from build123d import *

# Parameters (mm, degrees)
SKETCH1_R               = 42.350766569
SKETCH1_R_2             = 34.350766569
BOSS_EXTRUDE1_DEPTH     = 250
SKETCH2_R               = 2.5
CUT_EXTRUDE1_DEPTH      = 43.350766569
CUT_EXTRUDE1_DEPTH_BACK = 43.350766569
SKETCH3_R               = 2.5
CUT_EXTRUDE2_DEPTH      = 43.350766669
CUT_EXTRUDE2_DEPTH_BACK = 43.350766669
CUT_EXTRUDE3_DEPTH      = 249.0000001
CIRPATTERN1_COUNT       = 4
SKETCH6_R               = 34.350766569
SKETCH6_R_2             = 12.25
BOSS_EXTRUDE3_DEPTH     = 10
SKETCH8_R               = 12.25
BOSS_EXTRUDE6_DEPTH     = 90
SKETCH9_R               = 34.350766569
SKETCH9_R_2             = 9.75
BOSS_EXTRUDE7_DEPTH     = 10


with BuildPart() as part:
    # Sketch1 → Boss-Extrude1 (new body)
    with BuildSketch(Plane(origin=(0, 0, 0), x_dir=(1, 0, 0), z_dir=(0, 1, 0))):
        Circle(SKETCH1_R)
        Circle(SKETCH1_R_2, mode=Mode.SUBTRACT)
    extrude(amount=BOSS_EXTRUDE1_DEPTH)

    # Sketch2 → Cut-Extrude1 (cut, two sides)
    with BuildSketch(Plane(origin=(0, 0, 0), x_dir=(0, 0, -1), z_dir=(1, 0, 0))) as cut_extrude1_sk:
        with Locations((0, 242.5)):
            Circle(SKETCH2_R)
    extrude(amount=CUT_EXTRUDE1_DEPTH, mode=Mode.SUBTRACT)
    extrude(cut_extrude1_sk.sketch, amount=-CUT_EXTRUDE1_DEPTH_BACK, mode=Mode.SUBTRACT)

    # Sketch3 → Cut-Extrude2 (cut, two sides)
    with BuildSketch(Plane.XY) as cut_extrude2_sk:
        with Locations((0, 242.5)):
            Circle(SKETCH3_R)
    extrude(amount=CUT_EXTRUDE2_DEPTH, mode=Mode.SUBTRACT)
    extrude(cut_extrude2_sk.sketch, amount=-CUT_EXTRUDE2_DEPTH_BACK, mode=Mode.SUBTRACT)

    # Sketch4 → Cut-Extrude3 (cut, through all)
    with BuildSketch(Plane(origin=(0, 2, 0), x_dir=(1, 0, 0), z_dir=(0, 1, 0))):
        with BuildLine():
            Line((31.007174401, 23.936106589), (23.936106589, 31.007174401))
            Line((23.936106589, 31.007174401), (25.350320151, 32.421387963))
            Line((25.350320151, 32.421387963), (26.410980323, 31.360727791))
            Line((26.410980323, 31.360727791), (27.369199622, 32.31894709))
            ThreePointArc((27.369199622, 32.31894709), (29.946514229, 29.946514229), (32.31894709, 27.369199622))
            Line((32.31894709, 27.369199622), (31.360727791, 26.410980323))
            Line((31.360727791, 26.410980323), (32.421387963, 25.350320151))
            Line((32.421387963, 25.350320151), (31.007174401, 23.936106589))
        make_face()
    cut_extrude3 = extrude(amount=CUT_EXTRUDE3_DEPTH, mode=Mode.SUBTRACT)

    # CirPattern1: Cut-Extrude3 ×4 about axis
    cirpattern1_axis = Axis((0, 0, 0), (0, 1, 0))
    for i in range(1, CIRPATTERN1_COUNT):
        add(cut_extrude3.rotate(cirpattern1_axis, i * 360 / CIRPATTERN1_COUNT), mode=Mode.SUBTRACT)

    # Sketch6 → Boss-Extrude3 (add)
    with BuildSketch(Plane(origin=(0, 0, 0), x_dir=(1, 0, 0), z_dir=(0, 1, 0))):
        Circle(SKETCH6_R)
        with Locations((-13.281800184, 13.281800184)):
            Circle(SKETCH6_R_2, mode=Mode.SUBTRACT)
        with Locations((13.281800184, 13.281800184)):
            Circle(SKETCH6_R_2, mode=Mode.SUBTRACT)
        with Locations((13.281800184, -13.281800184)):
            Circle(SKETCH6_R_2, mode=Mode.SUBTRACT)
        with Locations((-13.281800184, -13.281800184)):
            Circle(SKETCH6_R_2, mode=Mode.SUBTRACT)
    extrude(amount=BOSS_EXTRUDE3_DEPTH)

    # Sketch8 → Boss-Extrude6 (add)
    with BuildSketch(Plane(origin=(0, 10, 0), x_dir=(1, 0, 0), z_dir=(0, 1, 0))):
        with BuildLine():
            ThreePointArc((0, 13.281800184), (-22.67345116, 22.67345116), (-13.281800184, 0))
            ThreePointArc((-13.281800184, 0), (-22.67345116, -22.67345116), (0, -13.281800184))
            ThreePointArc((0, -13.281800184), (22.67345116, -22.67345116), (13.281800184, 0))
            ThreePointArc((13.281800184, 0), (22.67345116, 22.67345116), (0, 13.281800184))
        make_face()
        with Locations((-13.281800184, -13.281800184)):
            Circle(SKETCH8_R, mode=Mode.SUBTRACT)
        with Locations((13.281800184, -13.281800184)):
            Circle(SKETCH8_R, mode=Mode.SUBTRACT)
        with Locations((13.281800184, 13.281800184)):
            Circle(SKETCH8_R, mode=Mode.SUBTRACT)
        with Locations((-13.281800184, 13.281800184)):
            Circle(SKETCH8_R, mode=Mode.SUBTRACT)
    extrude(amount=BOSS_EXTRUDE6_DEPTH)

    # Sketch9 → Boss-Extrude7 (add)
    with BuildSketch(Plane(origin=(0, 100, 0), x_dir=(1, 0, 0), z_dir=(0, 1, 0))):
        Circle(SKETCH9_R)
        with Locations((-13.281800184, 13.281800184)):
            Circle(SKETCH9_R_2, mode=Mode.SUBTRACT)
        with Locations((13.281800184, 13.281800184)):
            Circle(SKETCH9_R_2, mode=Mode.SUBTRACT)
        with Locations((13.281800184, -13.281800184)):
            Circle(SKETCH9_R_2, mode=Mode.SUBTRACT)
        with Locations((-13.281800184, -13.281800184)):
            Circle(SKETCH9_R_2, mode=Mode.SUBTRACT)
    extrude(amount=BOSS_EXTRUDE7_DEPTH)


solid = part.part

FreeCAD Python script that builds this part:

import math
import FreeCAD as App
import Part
import Sketcher
Q = App.Units.Quantity

doc = App.newDocument("Part")
params = doc.addObject("Spreadsheet::Sheet", "Params")
for row, (alias, value) in enumerate([
    ("pad1_length", "250 mm"),
    ("sketch2_diameter", "5 mm"),
    ("sketch3_diameter", "5 mm"),
    ("sketch4_length", "10 mm"),
    ("sketch4_length2", "2 mm"),
    ("sketch4_length3", "1.5 mm"),
    ("sketch5_diameter", "24.5 mm"),
    ("pad2_length", "10 mm"),
    ("sketch6_diameter", "24.5 mm"),
    ("pad3_length", "90 mm"),
    ("sketch7_diameter", "19.5 mm"),
    ("pad4_length", "10 mm"),
], start=1):
    params.set(f"A{row}", alias)
    params.set(f"B{row}", "=" + value)
    params.setAlias(f"B{row}", alias)

body = doc.addObject("PartDesign::Body", "Body")

# Sketch on XZ plane
sketch1 = body.newObject("Sketcher::SketchObject", "Sketch")
sketch1.AttachmentSupport = (doc.getObject("XZ_Plane"), [""])
sketch1.MapMode = "FlatFace"
sketch1.addGeometry(Part.Circle(App.Vector(0, 0, 0), App.Vector(0, 0, 1), 42), False)
sketch1.addGeometry(Part.Circle(App.Vector(0, 0, 0), App.Vector(0, 0, 1), 34), False)
sketch1.addConstraint(Sketcher.Constraint("Coincident", 0, 3, -1, 1))
sketch1.addConstraint(Sketcher.Constraint("Coincident", 1, 3, -1, 1))
sketch1.addConstraint(Sketcher.Constraint("Diameter", 0, 84.701533))
sketch1.addConstraint(Sketcher.Constraint("Diameter", 1, 68.701533))
pad1 = body.newObject("PartDesign::Pad", "Pad")
pad1.Profile = sketch1
pad1.setExpression("Length", "Params.pad1_length")
pad1.Reversed = True

# Sketch on YZ plane
sketch2 = body.newObject("Sketcher::SketchObject", "Sketch001")
sketch2.AttachmentSupport = (doc.getObject("YZ_Plane"), [""])
sketch2.MapMode = "FlatFace"
sketch2.addGeometry(Part.Circle(App.Vector(242.5, 0, 0), App.Vector(0, 0, 1), 2.5), False)
sketch2.addConstraint(Sketcher.Constraint("PointOnObject", 0, 3, -1))
sketch2.addConstraint(Sketcher.Constraint("Diameter", 0, 5.0))
sketch2.addConstraint(Sketcher.Constraint("DistanceX", -1, 1, 0, 3, 242.5))
sketch2.setExpression("Constraints[1]", "Params.sketch2_diameter")
pocket1 = body.newObject("PartDesign::Pocket", "Pocket")
pocket1.Profile = sketch2
pocket1.Type = "ThroughAll"
pocket1.Midplane = True

# Sketch on XY plane
sketch3 = body.newObject("Sketcher::SketchObject", "Sketch002")
sketch3.AttachmentSupport = (doc.getObject("XY_Plane"), [""])
sketch3.MapMode = "FlatFace"
sketch3.addGeometry(Part.Circle(App.Vector(0, 242.5, 0), App.Vector(0, 0, 1), 2.5), False)
sketch3.addConstraint(Sketcher.Constraint("PointOnObject", 0, 3, -2))
sketch3.addConstraint(Sketcher.Constraint("Diameter", 0, 5.0))
sketch3.addConstraint(Sketcher.Constraint("DistanceY", -1, 1, 0, 3, 242.5))
sketch3.setExpression("Constraints[1]", "Params.sketch3_diameter")
pocket2 = body.newObject("PartDesign::Pocket", "Pocket001")
pocket2.Profile = sketch3
pocket2.Type = "ThroughAll"
pocket2.Midplane = True

# Sketch on XZ plane
sketch4 = body.newObject("Sketcher::SketchObject", "Sketch003")
sketch4.AttachmentSupport = (doc.getObject("XZ_Plane"), [""])
sketch4.MapMode = "FlatFace"
sketch4.AttachmentOffset = App.Placement(App.Vector(0, 0, -2), App.Rotation())
sketch4.addGeometry(Part.LineSegment(App.Vector(23.9, -31, 0), App.Vector(31, -23.9, 0)), False)
sketch4.addGeometry(Part.LineSegment(App.Vector(31, -23.9, 0), App.Vector(32.4, -25.4, 0)), False)
sketch4.addGeometry(Part.LineSegment(App.Vector(32.4, -25.4, 0), App.Vector(31.4, -26.4, 0)), False)
sketch4.addGeometry(Part.LineSegment(App.Vector(31.4, -26.4, 0), App.Vector(32.3, -27.4, 0)), False)
sketch4.addGeometry(Part.ArcOfCircle(Part.Circle(App.Vector(0, 0, 0), App.Vector(0, 0, 1), 42.4), math.radians(-49.74), math.radians(-40.26)), False)
sketch4.addGeometry(Part.LineSegment(App.Vector(27.4, -32.3, 0), App.Vector(26.4, -31.4, 0)), False)
sketch4.addGeometry(Part.LineSegment(App.Vector(26.4, -31.4, 0), App.Vector(25.4, -32.4, 0)), False)
sketch4.addGeometry(Part.LineSegment(App.Vector(25.4, -32.4, 0), App.Vector(23.9, -31, 0)), False)
sketch4.addConstraint(Sketcher.Constraint("Coincident", 0, 2, 1, 1))
sketch4.addConstraint(Sketcher.Constraint("Coincident", 1, 2, 2, 1))
sketch4.addConstraint(Sketcher.Constraint("Coincident", 2, 2, 3, 1))
sketch4.addConstraint(Sketcher.Constraint("Coincident", 3, 2, 4, 2))
sketch4.addConstraint(Sketcher.Constraint("Coincident", 4, 1, 5, 1))
sketch4.addConstraint(Sketcher.Constraint("Coincident", 5, 2, 6, 1))
sketch4.addConstraint(Sketcher.Constraint("Coincident", 6, 2, 7, 1))
sketch4.addConstraint(Sketcher.Constraint("Coincident", 7, 2, 0, 1))
sketch4.addConstraint(Sketcher.Constraint("Coincident", 4, 3, -1, 1))
sketch4.addConstraint(Sketcher.Constraint("Perpendicular", 0, 1))
sketch4.addConstraint(Sketcher.Constraint("Perpendicular", 1, 2))
sketch4.addConstraint(Sketcher.Constraint("Perpendicular", 2, 3))
sketch4.addConstraint(Sketcher.Constraint("Parallel", 3, 5))
sketch4.addConstraint(Sketcher.Constraint("Perpendicular", 5, 6))
sketch4.addConstraint(Sketcher.Constraint("Perpendicular", 6, 7))
sketch4.addConstraint(Sketcher.Constraint("Equal", 3, 5))
sketch4.addConstraint(Sketcher.Constraint("Equal", 2, 6))
sketch4.addConstraint(Sketcher.Constraint("Equal", 1, 7))
sketch4.addConstraint(Sketcher.Constraint("Angle", 0, Q("45 deg")))
sketch4.addConstraint(Sketcher.Constraint("Distance", 0, 10.0))
sketch4.addConstraint(Sketcher.Constraint("Distance", 1, 2.0))
sketch4.addConstraint(Sketcher.Constraint("Distance", 2, 1.5))
sketch4.addConstraint(Sketcher.Constraint("Radius", 4, 42.350767))
sketch4.addConstraint(Sketcher.Constraint("DistanceY", 1, 2, -1, 1, 25.35032))
sketch4.setExpression("Constraints[19]", "Params.sketch4_length")
sketch4.setExpression("Constraints[20]", "Params.sketch4_length2")
sketch4.setExpression("Constraints[21]", "Params.sketch4_length3")
pocket3 = body.newObject("PartDesign::Pocket", "Pocket002")
pocket3.Profile = sketch4
pocket3.Type = "ThroughAll"
doc.recompute()

polarpattern = body.newObject("PartDesign::PolarPattern", "PolarPattern")
polarpattern.Originals = [pocket3]
polarpattern.Axis = (doc.getObject("Y_Axis"), [""])
polarpattern.Angle = 360
polarpattern.Occurrences = 4
body.Tip = polarpattern

# Sketch on XZ plane
sketch5 = body.newObject("Sketcher::SketchObject", "Sketch004")
sketch5.AttachmentSupport = (doc.getObject("XZ_Plane"), [""])
sketch5.MapMode = "FlatFace"
sketch5.addGeometry(Part.Circle(App.Vector(0, 0, 0), App.Vector(0, 0, 1), 34), False)
sketch5.addGeometry(Part.Circle(App.Vector(-13, 13, 0), App.Vector(0, 0, 1), 12), False)
sketch5.addGeometry(Part.Circle(App.Vector(13, 13, 0), App.Vector(0, 0, 1), 12), False)
sketch5.addGeometry(Part.Circle(App.Vector(-13, -13, 0), App.Vector(0, 0, 1), 12), False)
sketch5.addGeometry(Part.Circle(App.Vector(13, -13, 0), App.Vector(0, 0, 1), 12), False)
sketch5.addConstraint(Sketcher.Constraint("Coincident", 0, 3, -1, 1))
sketch5.addConstraint(Sketcher.Constraint("Equal", 1, 2))
sketch5.addConstraint(Sketcher.Constraint("Equal", 2, 3))
sketch5.addConstraint(Sketcher.Constraint("Equal", 3, 4))
sketch5.addConstraint(Sketcher.Constraint("Symmetric", 2, 3, 3, 3, -1, 1))
sketch5.addConstraint(Sketcher.Constraint("Symmetric", 1, 3, 4, 3, -1, 1))
sketch5.addConstraint(Sketcher.Constraint("Symmetric", 1, 3, 2, 3, -2))
sketch5.addConstraint(Sketcher.Constraint("Diameter", 1, 24.5))
sketch5.addConstraint(Sketcher.Constraint("Diameter", 0, 68.701533))
sketch5.addConstraint(Sketcher.Constraint("DistanceX", 1, 3, -1, 1, 13.2818))
sketch5.addConstraint(Sketcher.Constraint("DistanceY", -1, 1, 1, 3, 13.2818))
sketch5.setExpression("Constraints[7]", "Params.sketch5_diameter")
pad2 = body.newObject("PartDesign::Pad", "Pad001")
pad2.Profile = sketch5
pad2.setExpression("Length", "Params.pad2_length")
pad2.Reversed = True

# Sketch on XZ plane
sketch6 = body.newObject("Sketcher::SketchObject", "Sketch005")
sketch6.AttachmentSupport = (doc.getObject("XZ_Plane"), [""])
sketch6.MapMode = "FlatFace"
sketch6.AttachmentOffset = App.Placement(App.Vector(0, 0, -10), App.Rotation())
sketch6.addGeometry(Part.ArcOfCircle(Part.Circle(App.Vector(-13, -13, 0), App.Vector(0, 0, 1), 13), math.radians(90), math.radians(360)), False)
sketch6.addGeometry(Part.ArcOfCircle(Part.Circle(App.Vector(-13, 13, 0), App.Vector(0, 0, 1), 13), math.radians(0), math.radians(270)), False)
sketch6.addGeometry(Part.ArcOfCircle(Part.Circle(App.Vector(13, 13, 0), App.Vector(0, 0, 1), 13), math.radians(-90), math.radians(180)), False)
sketch6.addGeometry(Part.ArcOfCircle(Part.Circle(App.Vector(13, -13, 0), App.Vector(0, 0, 1), 13), math.radians(180), math.radians(450)), False)
sketch6.addGeometry(Part.Circle(App.Vector(-13, 13, 0), App.Vector(0, 0, 1), 12), False)
sketch6.addGeometry(Part.Circle(App.Vector(13, 13, 0), App.Vector(0, 0, 1), 12), False)
sketch6.addGeometry(Part.Circle(App.Vector(-13, -13, 0), App.Vector(0, 0, 1), 12), False)
sketch6.addGeometry(Part.Circle(App.Vector(13, -13, 0), App.Vector(0, 0, 1), 12), False)
sketch6.addConstraint(Sketcher.Constraint("Tangent", 0, 1, 1, 2))
sketch6.addConstraint(Sketcher.Constraint("Tangent", 1, 1, 2, 2))
sketch6.addConstraint(Sketcher.Constraint("Tangent", 2, 1, 3, 2))
sketch6.addConstraint(Sketcher.Constraint("Tangent", 3, 1, 0, 2))
sketch6.addConstraint(Sketcher.Constraint("Coincident", 4, 3, 1, 3))
sketch6.addConstraint(Sketcher.Constraint("Coincident", 5, 3, 2, 3))
sketch6.addConstraint(Sketcher.Constraint("Coincident", 6, 3, 0, 3))
sketch6.addConstraint(Sketcher.Constraint("Coincident", 7, 3, 3, 3))
sketch6.addConstraint(Sketcher.Constraint("Equal", 0, 1))
sketch6.addConstraint(Sketcher.Constraint("Equal", 1, 2))
sketch6.addConstraint(Sketcher.Constraint("Equal", 2, 3))
sketch6.addConstraint(Sketcher.Constraint("Equal", 4, 5))
sketch6.addConstraint(Sketcher.Constraint("Equal", 5, 6))
sketch6.addConstraint(Sketcher.Constraint("Equal", 6, 7))
sketch6.addConstraint(Sketcher.Constraint("Symmetric", 0, 3, 2, 3, -1, 1))
sketch6.addConstraint(Sketcher.Constraint("Symmetric", 1, 3, 2, 3, -2))
sketch6.addConstraint(Sketcher.Constraint("Diameter", 4, 24.5))
sketch6.addConstraint(Sketcher.Constraint("Radius", 0, 13.2818))
sketch6.setExpression("Constraints[16]", "Params.sketch6_diameter")
pad3 = body.newObject("PartDesign::Pad", "Pad002")
pad3.Profile = sketch6
pad3.setExpression("Length", "Params.pad3_length")
pad3.Reversed = True

# Sketch on XZ plane
sketch7 = body.newObject("Sketcher::SketchObject", "Sketch006")
sketch7.AttachmentSupport = (doc.getObject("XZ_Plane"), [""])
sketch7.MapMode = "FlatFace"
sketch7.AttachmentOffset = App.Placement(App.Vector(0, 0, -100), App.Rotation())
sketch7.addGeometry(Part.Circle(App.Vector(0, 0, 0), App.Vector(0, 0, 1), 34), False)
sketch7.addGeometry(Part.Circle(App.Vector(-13, 13, 0), App.Vector(0, 0, 1), 10), False)
sketch7.addGeometry(Part.Circle(App.Vector(13, 13, 0), App.Vector(0, 0, 1), 10), False)
sketch7.addGeometry(Part.Circle(App.Vector(-13, -13, 0), App.Vector(0, 0, 1), 10), False)
sketch7.addGeometry(Part.Circle(App.Vector(13, -13, 0), App.Vector(0, 0, 1), 10), False)
sketch7.addConstraint(Sketcher.Constraint("Coincident", 0, 3, -1, 1))
sketch7.addConstraint(Sketcher.Constraint("Equal", 1, 2))
sketch7.addConstraint(Sketcher.Constraint("Equal", 2, 3))
sketch7.addConstraint(Sketcher.Constraint("Equal", 3, 4))
sketch7.addConstraint(Sketcher.Constraint("Symmetric", 2, 3, 3, 3, -1, 1))
sketch7.addConstraint(Sketcher.Constraint("Symmetric", 1, 3, 4, 3, -1, 1))
sketch7.addConstraint(Sketcher.Constraint("Symmetric", 1, 3, 2, 3, -2))
sketch7.addConstraint(Sketcher.Constraint("Diameter", 1, 19.5))
sketch7.addConstraint(Sketcher.Constraint("Diameter", 0, 68.701533))
sketch7.addConstraint(Sketcher.Constraint("DistanceX", 1, 3, -1, 1, 13.2818))
sketch7.addConstraint(Sketcher.Constraint("DistanceY", -1, 1, 1, 3, 13.2818))
sketch7.setExpression("Constraints[7]", "Params.sketch7_diameter")
pad4 = body.newObject("PartDesign::Pad", "Pad003")
pad4.Profile = sketch7
pad4.setExpression("Length", "Params.pad4_length")
pad4.Reversed = True

doc.recompute()
